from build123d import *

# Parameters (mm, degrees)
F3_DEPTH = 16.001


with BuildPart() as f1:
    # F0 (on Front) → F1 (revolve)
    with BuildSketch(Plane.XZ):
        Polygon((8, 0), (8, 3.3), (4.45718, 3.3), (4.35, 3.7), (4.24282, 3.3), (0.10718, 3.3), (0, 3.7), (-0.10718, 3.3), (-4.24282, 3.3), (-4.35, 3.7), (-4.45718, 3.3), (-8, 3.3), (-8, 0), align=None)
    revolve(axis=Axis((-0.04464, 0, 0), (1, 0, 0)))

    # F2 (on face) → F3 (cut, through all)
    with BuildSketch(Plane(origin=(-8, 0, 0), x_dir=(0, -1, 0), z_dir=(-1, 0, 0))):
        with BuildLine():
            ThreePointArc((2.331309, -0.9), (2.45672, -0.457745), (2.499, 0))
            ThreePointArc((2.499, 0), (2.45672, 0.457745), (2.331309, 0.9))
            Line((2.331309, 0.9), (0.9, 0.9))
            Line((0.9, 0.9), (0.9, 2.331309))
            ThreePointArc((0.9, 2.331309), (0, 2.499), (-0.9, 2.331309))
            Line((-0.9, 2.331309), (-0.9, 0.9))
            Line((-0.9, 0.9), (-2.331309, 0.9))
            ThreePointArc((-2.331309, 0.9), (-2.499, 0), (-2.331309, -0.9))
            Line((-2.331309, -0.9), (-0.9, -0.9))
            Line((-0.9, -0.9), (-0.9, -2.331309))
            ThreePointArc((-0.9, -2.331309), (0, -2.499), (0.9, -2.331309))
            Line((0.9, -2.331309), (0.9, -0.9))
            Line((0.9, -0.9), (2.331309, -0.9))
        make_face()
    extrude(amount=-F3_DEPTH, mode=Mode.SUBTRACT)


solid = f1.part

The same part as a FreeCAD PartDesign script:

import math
import FreeCAD as App
import Part
import Sketcher
from FreeCAD import Vector
Q = App.Units.Quantity


def add_polygon(sketch, points):
    """Adds a closed chain of lines whose ends are joined by coincident constraints."""
    first, n = sketch.GeometryCount, len(points)
    for a, b in zip(points, points[1:] + points[:1]):
        sketch.addGeometry(Part.LineSegment(App.Vector(*a, 0), App.Vector(*b, 0)), False)
    for i in range(n):
        sketch.addConstraint(Sketcher.Constraint("Coincident", first + i, 2, first + (i + 1) % n, 1))

doc = App.newDocument("Part")
body = doc.addObject("PartDesign::Body", "Body")

# Sketch on XZ plane
sketch1 = body.newObject("Sketcher::SketchObject", "Sketch")
sketch1.AttachmentSupport = (doc.getObject("XZ_Plane"), [""])
sketch1.MapMode = "FlatFace"
add_polygon(sketch1, [(8, 0), (8, 3.3), (4.45718, 3.3), (4.35, 3.7), (4.24282, 3.3), (0.10718, 3.3), (0, 3.7), (-0.10718, 3.3), (-4.24282, 3.3), (-4.35, 3.7), (-4.45718, 3.3), (-8, 3.3), (-8, 0)])  # lines 0-12
sketch1.addConstraint([
    Sketcher.Constraint("Vertical", 0),
    Sketcher.Constraint("Horizontal", 1),
    Sketcher.Constraint("Horizontal", 4),
    Sketcher.Constraint("Horizontal", 7),
    Sketcher.Constraint("Horizontal", 10),
    Sketcher.Constraint("Vertical", 11),
    Sketcher.Constraint("Horizontal", 12),
    Sketcher.Constraint("Symmetric", 11, 2, 12, 2, -1, 1),
    Sketcher.Constraint("Symmetric", 4, 2, 6, 2, -2),
    Sketcher.Constraint("Symmetric", 2, 2, 8, 2, -2),
    Sketcher.Constraint("Symmetric", 1, 2, 9, 2, -2),
    Sketcher.Constraint("PointOnObject", 5, 2, -2),
    Sketcher.Constraint("Parallel", 2, 5),
    Sketcher.Constraint("Parallel", 3, 6),
    Sketcher.Constraint("Parallel", 5, 8),
    Sketcher.Constraint("Horizontal", 1, 2, 3, 2),
    Sketcher.Constraint("Horizontal", 2, 2, 5, 2),
    Sketcher.Constraint("DistanceX", 12, 1, 12, 2, Q("16 mm")),
    Sketcher.Constraint("DistanceY", 0, 1, 0, 2, Q("3.3 mm")),
    Sketcher.Constraint("DistanceY", -1, 1, 2, 2, Q("3.7 mm")),
    Sketcher.Constraint("DistanceX", -1, 1, 2, 2, Q("4.35 mm")),
    Sketcher.Constraint("DistanceX", 1, 2, 1, 1, Q("3.54282 mm")),
])
revolution = body.newObject("PartDesign::Revolution", "Revolution")
revolution.Profile = sketch1
revolution.ReferenceAxis = (sketch1, ["H_Axis"])
revolution.Angle = 360

# Sketch on YZ plane
sketch2 = body.newObject("Sketcher::SketchObject", "Sketch001")
sketch2.AttachmentSupport = (doc.getObject("YZ_Plane"), [""])
sketch2.MapMode = "FlatFace"
sketch2.AttachmentOffset = App.Placement(Vector(0, 0, -8), App.Rotation())
sketch2.addGeometry([
    Part.ArcOfCircle(Part.Circle(Vector(-0.000027, -0.000005, 0), Vector(0, 0, 1), 2.498973), math.radians(179.999877), math.radians(201.109149)),  # 0
    Part.ArcOfCircle(Part.Circle(Vector(-0.000027, 0.000005, 0), Vector(0, 0, 1), 2.498973), math.radians(158.890851), math.radians(180.000123)),  # 1
    Part.LineSegment(Vector(-2.331309, 0.9, 0), Vector(-0.9, 0.9, 0)),  # 2
    Part.LineSegment(Vector(-0.9, 0.9, 0), Vector(-0.9, 2.331309, 0)),  # 3
    Part.ArcOfCircle(Part.Circle(Vector(0, -0.000002, 0), Vector(0, 0, 1), 2.499002), math.radians(68.890974), math.radians(111.109026)),  # 4
    Part.LineSegment(Vector(0.9, 2.331309, 0), Vector(0.9, 0.9, 0)),  # 5
    Part.LineSegment(Vector(0.9, 0.9, 0), Vector(2.331309, 0.9, 0)),  # 6
    Part.ArcOfCircle(Part.Circle(Vector(-0.000002, 0, 0), Vector(0, 0, 1), 2.499002), math.radians(-21.109026), math.radians(21.109026)),  # 7
    Part.LineSegment(Vector(2.331309, -0.9, 0), Vector(0.9, -0.9, 0)),  # 8
    Part.LineSegment(Vector(0.9, -0.9, 0), Vector(0.9, -2.331309, 0)),  # 9
    Part.ArcOfCircle(Part.Circle(Vector(0, 0.000002, 0), Vector(0, 0, 1), 2.499002), math.radians(-111.109026), math.radians(-68.890974)),  # 10
    Part.LineSegment(Vector(-0.9, -2.331309, 0), Vector(-0.9, -0.9, 0)),  # 11
    Part.LineSegment(Vector(-0.9, -0.9, 0), Vector(-2.331309, -0.9, 0)),  # 12
], False)
sketch2.addConstraint([
    Sketcher.Constraint("Coincident", 0, 1, 1, 2),
    Sketcher.Constraint("Coincident", 1, 1, 2, 1),
    Sketcher.Constraint("Coincident", 2, 2, 3, 1),
    Sketcher.Constraint("Coincident", 3, 2, 4, 2),
    Sketcher.Constraint("Coincident", 4, 1, 5, 1),
    Sketcher.Constraint("Coincident", 5, 2, 6, 1),
    Sketcher.Constraint("Coincident", 6, 2, 7, 2),
    Sketcher.Constraint("Coincident", 7, 1, 8, 1),
    Sketcher.Constraint("Coincident", 8, 2, 9, 1),
    Sketcher.Constraint("Coincident", 9, 2, 10, 2),
    Sketcher.Constraint("Coincident", 10, 1, 11, 1),
    Sketcher.Constraint("Coincident", 11, 2, 12, 1),
    Sketcher.Constraint("Coincident", 12, 2, 0, 2),
    Sketcher.Constraint("Horizontal", 2),
    Sketcher.Constraint("Vertical", 3),
    Sketcher.Constraint("Vertical", 5),
    Sketcher.Constraint("Horizontal", 6),
    Sketcher.Constraint("Horizontal", 8),
    Sketcher.Constraint("Vertical", 9),
    Sketcher.Constraint("Vertical", 11),
    Sketcher.Constraint("Horizontal", 12),
    Sketcher.Constraint("Coincident", 4, 3, -1, 1),
    Sketcher.Constraint("Coincident", 7, 3, -1, 1),
    Sketcher.Constraint("Coincident", 10, 3, -1, 1),
    Sketcher.Constraint("Equal", 0, 1),
    Sketcher.Constraint("Equal", 4, 7),
    Sketcher.Constraint("Equal", 7, 10),
    Sketcher.Constraint("Symmetric", 1, 1, 7, 1, -1, 1),
    Sketcher.Constraint("Symmetric", 5, 2, 11, 2, -1, 1),
    Sketcher.Constraint("Symmetric", 2, 2, 5, 2, -2),
    Sketcher.Constraint("PointOnObject", 0, 1, -1),
    Sketcher.Constraint("Horizontal", 9, 2, 10, 1),
    Sketcher.Constraint("Vertical", 1, 1, 12, 2),
    Sketcher.Constraint("Equal", 12, 3),
    Sketcher.Constraint("Radius", 4, Q("2.499002 mm")),
    Sketcher.Constraint("DistanceY", -1, 1, 1, 1, Q("0.9 mm")),
    Sketcher.Constraint("DistanceX", 0, 1, -1, 1, Q("2.499 mm")),
    Sketcher.Constraint("Radius", 0, Q("2.498973 mm")),
])
pocket1 = body.newObject("PartDesign::Pocket", "Pocket")
pocket1.Profile = sketch2
pocket1.Type = "ThroughAll"
pocket1.Reversed = True

doc.recompute()
